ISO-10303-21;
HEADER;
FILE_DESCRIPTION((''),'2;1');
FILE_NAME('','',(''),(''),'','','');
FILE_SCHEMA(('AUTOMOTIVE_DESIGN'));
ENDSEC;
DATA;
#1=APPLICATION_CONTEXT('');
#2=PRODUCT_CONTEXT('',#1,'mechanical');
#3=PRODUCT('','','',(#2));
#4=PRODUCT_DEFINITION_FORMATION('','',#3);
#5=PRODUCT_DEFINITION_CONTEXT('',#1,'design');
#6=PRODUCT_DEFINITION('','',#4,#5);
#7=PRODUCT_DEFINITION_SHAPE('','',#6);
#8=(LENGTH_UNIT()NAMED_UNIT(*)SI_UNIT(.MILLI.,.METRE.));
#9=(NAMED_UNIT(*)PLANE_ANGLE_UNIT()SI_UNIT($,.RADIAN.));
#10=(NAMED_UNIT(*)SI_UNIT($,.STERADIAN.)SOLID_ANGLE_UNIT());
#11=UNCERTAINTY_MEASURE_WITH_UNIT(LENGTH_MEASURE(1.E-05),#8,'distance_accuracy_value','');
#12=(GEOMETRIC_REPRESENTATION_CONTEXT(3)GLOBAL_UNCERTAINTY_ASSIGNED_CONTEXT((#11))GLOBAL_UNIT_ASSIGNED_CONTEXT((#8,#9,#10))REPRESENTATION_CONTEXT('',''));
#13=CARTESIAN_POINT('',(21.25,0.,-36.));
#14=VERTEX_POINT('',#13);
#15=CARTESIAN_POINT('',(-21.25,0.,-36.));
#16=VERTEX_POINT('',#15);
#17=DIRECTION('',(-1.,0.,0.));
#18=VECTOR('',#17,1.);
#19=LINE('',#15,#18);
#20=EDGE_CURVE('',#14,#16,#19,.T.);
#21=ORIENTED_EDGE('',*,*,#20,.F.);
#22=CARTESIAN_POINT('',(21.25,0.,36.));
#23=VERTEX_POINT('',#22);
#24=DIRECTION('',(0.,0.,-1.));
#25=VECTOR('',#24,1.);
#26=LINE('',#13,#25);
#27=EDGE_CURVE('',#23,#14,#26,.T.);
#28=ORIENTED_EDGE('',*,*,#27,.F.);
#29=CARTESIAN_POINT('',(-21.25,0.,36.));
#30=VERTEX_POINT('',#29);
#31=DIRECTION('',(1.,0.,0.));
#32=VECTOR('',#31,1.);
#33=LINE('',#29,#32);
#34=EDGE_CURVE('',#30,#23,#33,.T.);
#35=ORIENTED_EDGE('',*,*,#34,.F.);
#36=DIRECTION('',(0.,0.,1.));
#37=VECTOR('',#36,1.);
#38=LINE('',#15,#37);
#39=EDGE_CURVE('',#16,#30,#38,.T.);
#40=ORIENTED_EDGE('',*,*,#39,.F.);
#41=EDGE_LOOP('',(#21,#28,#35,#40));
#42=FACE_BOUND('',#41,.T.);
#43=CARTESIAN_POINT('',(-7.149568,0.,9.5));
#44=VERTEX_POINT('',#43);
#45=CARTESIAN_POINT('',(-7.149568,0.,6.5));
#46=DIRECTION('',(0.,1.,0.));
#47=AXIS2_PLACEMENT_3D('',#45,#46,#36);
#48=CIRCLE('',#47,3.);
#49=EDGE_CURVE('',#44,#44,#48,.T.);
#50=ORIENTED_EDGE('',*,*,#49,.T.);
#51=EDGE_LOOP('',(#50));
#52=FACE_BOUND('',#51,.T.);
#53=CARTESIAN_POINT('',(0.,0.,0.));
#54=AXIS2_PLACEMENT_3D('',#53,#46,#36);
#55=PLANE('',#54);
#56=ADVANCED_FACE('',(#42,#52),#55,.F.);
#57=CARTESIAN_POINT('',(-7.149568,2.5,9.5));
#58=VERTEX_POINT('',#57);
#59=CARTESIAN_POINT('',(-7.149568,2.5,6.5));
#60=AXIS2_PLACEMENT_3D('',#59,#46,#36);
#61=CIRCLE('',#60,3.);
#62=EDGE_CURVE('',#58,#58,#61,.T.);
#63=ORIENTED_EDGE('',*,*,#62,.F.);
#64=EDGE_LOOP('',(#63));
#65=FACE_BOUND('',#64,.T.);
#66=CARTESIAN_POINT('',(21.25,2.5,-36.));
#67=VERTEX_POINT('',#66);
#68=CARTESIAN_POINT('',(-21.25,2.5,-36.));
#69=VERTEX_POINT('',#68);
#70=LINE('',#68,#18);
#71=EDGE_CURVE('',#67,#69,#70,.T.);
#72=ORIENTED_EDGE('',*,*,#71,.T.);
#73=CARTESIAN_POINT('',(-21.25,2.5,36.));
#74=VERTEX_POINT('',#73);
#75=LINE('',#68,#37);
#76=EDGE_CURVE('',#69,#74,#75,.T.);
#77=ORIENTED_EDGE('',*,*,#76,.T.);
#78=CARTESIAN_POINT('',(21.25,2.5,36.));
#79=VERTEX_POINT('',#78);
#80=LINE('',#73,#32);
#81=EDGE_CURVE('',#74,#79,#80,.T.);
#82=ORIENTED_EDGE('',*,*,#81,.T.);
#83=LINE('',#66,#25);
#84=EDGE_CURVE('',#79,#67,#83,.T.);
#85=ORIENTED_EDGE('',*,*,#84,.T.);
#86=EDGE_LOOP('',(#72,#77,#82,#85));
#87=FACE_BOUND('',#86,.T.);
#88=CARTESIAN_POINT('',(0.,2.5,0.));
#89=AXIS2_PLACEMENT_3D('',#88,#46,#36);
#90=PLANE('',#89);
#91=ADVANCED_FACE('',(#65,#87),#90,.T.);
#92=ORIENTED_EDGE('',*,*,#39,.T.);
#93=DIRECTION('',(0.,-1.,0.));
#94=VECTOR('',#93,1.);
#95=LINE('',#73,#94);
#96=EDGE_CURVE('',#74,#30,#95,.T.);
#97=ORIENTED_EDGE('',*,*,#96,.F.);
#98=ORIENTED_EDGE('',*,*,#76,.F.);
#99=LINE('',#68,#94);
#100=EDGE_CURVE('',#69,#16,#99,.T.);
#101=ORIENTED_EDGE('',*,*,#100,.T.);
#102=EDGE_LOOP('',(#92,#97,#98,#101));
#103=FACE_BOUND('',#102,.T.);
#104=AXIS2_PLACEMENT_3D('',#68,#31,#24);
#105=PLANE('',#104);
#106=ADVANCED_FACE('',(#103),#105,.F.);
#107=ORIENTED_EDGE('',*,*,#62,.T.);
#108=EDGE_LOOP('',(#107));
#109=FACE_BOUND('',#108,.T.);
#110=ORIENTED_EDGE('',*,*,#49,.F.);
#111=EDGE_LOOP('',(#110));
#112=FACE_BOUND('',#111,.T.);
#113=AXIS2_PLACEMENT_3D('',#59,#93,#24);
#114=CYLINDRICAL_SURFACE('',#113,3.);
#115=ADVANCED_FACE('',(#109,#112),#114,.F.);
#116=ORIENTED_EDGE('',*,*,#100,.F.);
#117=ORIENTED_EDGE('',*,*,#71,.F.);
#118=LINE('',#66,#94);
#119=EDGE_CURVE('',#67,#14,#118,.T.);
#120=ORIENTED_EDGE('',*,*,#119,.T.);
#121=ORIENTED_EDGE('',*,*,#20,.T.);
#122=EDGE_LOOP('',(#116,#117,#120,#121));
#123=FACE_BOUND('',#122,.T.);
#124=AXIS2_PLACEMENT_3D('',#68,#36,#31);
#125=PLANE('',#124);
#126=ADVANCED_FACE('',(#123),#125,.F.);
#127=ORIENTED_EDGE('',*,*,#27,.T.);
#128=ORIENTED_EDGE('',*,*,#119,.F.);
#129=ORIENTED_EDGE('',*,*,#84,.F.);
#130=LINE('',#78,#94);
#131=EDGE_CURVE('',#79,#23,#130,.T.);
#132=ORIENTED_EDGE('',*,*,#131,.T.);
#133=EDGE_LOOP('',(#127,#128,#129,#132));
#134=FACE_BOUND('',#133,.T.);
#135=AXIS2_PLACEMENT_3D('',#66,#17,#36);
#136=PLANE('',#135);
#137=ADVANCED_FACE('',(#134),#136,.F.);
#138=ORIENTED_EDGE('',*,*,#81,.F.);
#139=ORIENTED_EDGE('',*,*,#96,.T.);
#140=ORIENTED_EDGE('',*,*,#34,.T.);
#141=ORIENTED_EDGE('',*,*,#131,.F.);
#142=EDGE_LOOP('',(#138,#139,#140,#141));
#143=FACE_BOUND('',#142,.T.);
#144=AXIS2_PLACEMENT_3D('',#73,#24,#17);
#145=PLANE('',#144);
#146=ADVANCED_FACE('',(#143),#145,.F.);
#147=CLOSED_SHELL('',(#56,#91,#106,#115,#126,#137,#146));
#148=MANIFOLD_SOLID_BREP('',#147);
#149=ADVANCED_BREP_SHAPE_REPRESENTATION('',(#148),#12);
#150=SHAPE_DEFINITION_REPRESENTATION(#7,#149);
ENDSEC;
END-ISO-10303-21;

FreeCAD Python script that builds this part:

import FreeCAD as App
import Part
import Sketcher
from FreeCAD import Vector


def add_polygon(sketch, points):
    """Adds a closed chain of lines whose ends are joined by coincident constraints."""
    first, n = sketch.GeometryCount, len(points)
    for a, b in zip(points, points[1:] + points[:1]):
        sketch.addGeometry(Part.LineSegment(App.Vector(*a, 0), App.Vector(*b, 0)), False)
    for i in range(n):
        sketch.addConstraint(Sketcher.Constraint("Coincident", first + i, 2, first + (i + 1) % n, 1))

doc = App.newDocument("Part")
body = doc.addObject("PartDesign::Body", "Body")

sketch1 = doc.addObject("Sketcher::SketchObject", "Sketch")
body.addObject(sketch1)
sketch1.AttachmentSupport = (doc.XZ_Plane, [""])
sketch1.MapMode = "FlatFace"
add_polygon(sketch1, [(-21.2, -36), (-21.2, 36), (21.2, 36), (21.2, -36)])
sketch1.addGeometry(Part.Circle(Vector(-7.1, 6.5, 0), Vector(0, 0, 1), 3), False)
sketch1.addConstraint([
    Sketcher.Constraint("Vertical", 0),
    Sketcher.Constraint("Horizontal", 1),
    Sketcher.Constraint("Vertical", 2),
    Sketcher.Constraint("Horizontal", 3),
    Sketcher.Constraint("Symmetric", 0, 2, 2, 2, -1, 1),
    Sketcher.Constraint("Diameter", 4, 6.0),
    Sketcher.Constraint("DistanceY", 0, 1, 0, 2, 72.0),
    Sketcher.Constraint("DistanceX", 1, 1, 1, 2, 42.5),
    Sketcher.Constraint("DistanceY", -1, 1, 4, 3, 6.5),
    Sketcher.Constraint("DistanceX", 4, 3, -1, 1, 7.149568),
])
pad1 = doc.addObject("PartDesign::Pad", "Pad")
body.addObject(pad1)
pad1.Profile = sketch1
pad1.Length = 2.5
pad1.Reversed = True

doc.recompute()
